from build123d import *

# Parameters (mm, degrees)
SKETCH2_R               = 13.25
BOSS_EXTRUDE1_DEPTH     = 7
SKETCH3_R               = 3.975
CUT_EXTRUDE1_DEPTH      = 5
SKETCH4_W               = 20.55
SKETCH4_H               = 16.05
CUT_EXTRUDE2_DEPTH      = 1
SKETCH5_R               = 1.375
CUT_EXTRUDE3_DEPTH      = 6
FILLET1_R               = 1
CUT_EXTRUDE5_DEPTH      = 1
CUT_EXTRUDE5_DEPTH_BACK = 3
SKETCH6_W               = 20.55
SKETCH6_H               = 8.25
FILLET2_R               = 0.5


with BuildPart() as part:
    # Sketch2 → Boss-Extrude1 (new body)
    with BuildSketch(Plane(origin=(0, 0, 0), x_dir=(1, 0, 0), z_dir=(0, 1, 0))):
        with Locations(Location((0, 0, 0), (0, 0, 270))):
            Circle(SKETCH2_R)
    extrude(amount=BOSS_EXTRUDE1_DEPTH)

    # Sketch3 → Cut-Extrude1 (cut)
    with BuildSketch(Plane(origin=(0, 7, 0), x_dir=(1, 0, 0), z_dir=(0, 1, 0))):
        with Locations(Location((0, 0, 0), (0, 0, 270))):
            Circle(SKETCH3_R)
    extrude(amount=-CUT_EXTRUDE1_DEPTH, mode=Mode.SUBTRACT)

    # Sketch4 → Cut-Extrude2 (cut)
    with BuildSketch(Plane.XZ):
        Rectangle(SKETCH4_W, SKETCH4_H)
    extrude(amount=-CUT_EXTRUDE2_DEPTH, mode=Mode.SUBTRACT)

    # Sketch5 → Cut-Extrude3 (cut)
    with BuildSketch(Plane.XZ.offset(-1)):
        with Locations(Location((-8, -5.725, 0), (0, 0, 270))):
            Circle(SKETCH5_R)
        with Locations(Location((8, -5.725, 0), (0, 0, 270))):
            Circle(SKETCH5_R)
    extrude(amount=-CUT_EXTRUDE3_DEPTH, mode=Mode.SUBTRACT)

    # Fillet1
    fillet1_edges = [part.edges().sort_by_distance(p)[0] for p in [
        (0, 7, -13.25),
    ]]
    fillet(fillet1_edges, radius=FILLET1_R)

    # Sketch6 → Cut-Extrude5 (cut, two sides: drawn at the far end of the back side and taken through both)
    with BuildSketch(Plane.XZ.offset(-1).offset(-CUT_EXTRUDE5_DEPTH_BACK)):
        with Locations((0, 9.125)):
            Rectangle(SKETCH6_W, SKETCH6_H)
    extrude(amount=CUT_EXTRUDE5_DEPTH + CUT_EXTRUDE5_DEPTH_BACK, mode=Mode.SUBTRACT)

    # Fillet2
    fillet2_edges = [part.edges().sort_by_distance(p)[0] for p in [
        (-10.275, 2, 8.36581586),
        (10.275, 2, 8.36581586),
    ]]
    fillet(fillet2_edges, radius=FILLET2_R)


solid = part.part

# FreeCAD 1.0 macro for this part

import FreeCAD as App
import Part
import Sketcher

V = App.Vector


def edges_at(feature, points):
    """Names of the edges that pass closest to the given points."""
    edges = feature.Shape.Edges
    near = lambda p: min(range(len(edges)), key=lambda i: edges[i].distToShape(Part.Vertex(*p))[0])
    return sorted({f"Edge{near(p) + 1}" for p in points})

doc = App.newDocument("Part")
body = doc.addObject("PartDesign::Body", "Body")

sketch1 = doc.addObject("Sketcher::SketchObject", "Sketch")
body.addObject(sketch1)
sketch1.AttachmentSupport = (doc.XZ_Plane, [""])
sketch1.MapMode = "FlatFace"
sketch1.addGeometry(Part.Circle(V(0, 0, 0), V(0, 0, 1), 13), False)
sketch1.addConstraint(Sketcher.Constraint("Coincident", 0, 3, -1, 1))
sketch1.addConstraint(Sketcher.Constraint("Diameter", 0, 26.5))
pad1 = doc.addObject("PartDesign::Pad", "Pad")
body.addObject(pad1)
pad1.Profile = sketch1
pad1.Length = 7
pad1.Reversed = True

sketch2 = doc.addObject("Sketcher::SketchObject", "Sketch001")
body.addObject(sketch2)
sketch2.AttachmentSupport = (doc.XZ_Plane, [""])
sketch2.MapMode = "FlatFace"
sketch2.AttachmentOffset = App.Placement(V(0, 0, -7), App.Rotation())
sketch2.addGeometry(Part.Circle(V(0, 0, 0), V(0, 0, 1), 4), False)
sketch2.addConstraint(Sketcher.Constraint("Coincident", 0, 3, -1, 1))
sketch2.addConstraint(Sketcher.Constraint("Diameter", 0, 7.95))
pocket1 = doc.addObject("PartDesign::Pocket", "Pocket")
body.addObject(pocket1)
pocket1.Profile = sketch2
pocket1.Length = 5
pocket1.Reversed = True

sketch3 = doc.addObject("Sketcher::SketchObject", "Sketch002")
body.addObject(sketch3)
sketch3.AttachmentSupport = (doc.XZ_Plane, [""])
sketch3.MapMode = "FlatFace"
sketch3.addGeometry(Part.LineSegment(V(-10, 8, 0), V(-10, -8, 0)), False)
sketch3.addGeometry(Part.LineSegment(V(-10, -8, 0), V(10, -8, 0)), False)
sketch3.addGeometry(Part.LineSegment(V(10, -8, 0), V(10, 8, 0)), False)
sketch3.addGeometry(Part.LineSegment(V(10, 8, 0), V(-10, 8, 0)), False)
sketch3.addConstraint(Sketcher.Constraint("Coincident", 0, 2, 1, 1))
sketch3.addConstraint(Sketcher.Constraint("Coincident", 1, 2, 2, 1))
sketch3.addConstraint(Sketcher.Constraint("Coincident", 2, 2, 3, 1))
sketch3.addConstraint(Sketcher.Constraint("Coincident", 3, 2, 0, 1))
sketch3.addConstraint(Sketcher.Constraint("Vertical", 0))
sketch3.addConstraint(Sketcher.Constraint("Horizontal", 1))
sketch3.addConstraint(Sketcher.Constraint("Vertical", 2))
sketch3.addConstraint(Sketcher.Constraint("Horizontal", 3))
sketch3.addConstraint(Sketcher.Constraint("Symmetric", 0, 2, 2, 2, -1, 1))
sketch3.addConstraint(Sketcher.Constraint("DistanceX", 1, 1, 1, 2, 20.55))
sketch3.addConstraint(Sketcher.Constraint("DistanceY", 0, 2, 0, 1, 16.05))
pocket2 = doc.addObject("PartDesign::Pocket", "Pocket001")
body.addObject(pocket2)
pocket2.Profile = sketch3
pocket2.Length = 1

sketch4 = doc.addObject("Sketcher::SketchObject", "Sketch003")
body.addObject(sketch4)
sketch4.AttachmentSupport = (doc.XZ_Plane, [""])
sketch4.MapMode = "FlatFace"
sketch4.AttachmentOffset = App.Placement(V(0, 0, -1), App.Rotation())
sketch4.addGeometry(Part.Circle(V(-8, -5.7, 0), V(0, 0, 1), 1.4), False)
sketch4.addGeometry(Part.Circle(V(8, -5.7, 0), V(0, 0, 1), 1.4), False)
sketch4.addConstraint(Sketcher.Constraint("Equal", 0, 1))
sketch4.addConstraint(Sketcher.Constraint("Symmetric", 0, 3, 1, 3, -2))
sketch4.addConstraint(Sketcher.Constraint("Diameter", 0, 2.75))
sketch4.addConstraint(Sketcher.Constraint("DistanceX", 0, 3, -1, 1, 8.0))
sketch4.addConstraint(Sketcher.Constraint("DistanceY", 0, 3, -1, 1, 5.725))
pocket3 = doc.addObject("PartDesign::Pocket", "Pocket002")
body.addObject(pocket3)
pocket3.Profile = sketch4
pocket3.Length = 6
doc.recompute()

fillet = doc.addObject("PartDesign::Fillet", "Fillet")
body.addObject(fillet)
fillet.Base = (pocket3, edges_at(pocket3, [(0, 7, -13.25)]))
fillet.Radius = 1

sketch5 = doc.addObject("Sketcher::SketchObject", "Sketch004")
body.addObject(sketch5)
sketch5.AttachmentSupport = (doc.XZ_Plane, [""])
sketch5.MapMode = "FlatFace"
sketch5.AttachmentOffset = App.Placement(V(0, 0, -1), App.Rotation())
sketch5.addGeometry(Part.LineSegment(V(-10, 13, 0), V(-10, 5, 0)), False)
sketch5.addGeometry(Part.LineSegment(V(-10, 5, 0), V(10, 5, 0)), False)
sketch5.addGeometry(Part.LineSegment(V(10, 5, 0), V(10, 13, 0)), False)
sketch5.addGeometry(Part.LineSegment(V(10, 13, 0), V(-10, 13, 0)), False)
sketch5.addConstraint(Sketcher.Constraint("Coincident", 0, 2, 1, 1))
sketch5.addConstraint(Sketcher.Constraint("Coincident", 1, 2, 2, 1))
sketch5.addConstraint(Sketcher.Constraint("Coincident", 2, 2, 3, 1))
sketch5.addConstraint(Sketcher.Constraint("Coincident", 3, 2, 0, 1))
sketch5.addConstraint(Sketcher.Constraint("Vertical", 0))
sketch5.addConstraint(Sketcher.Constraint("Horizontal", 1))
sketch5.addConstraint(Sketcher.Constraint("Vertical", 2))
sketch5.addConstraint(Sketcher.Constraint("Horizontal", 3))
sketch5.addConstraint(Sketcher.Constraint("DistanceY", -1, 1, 0, 2, 5.0))
sketch5.addConstraint(Sketcher.Constraint("DistanceX", 1, 1, 1, 2, 20.55))
sketch5.addConstraint(Sketcher.Constraint("DistanceY", 0, 2, 0, 1, 8.25))
sketch5.addConstraint(Sketcher.Constraint("DistanceX", 0, 2, -1, 1, 10.275))
pocket4 = doc.addObject("PartDesign::Pocket", "Pocket003")
body.addObject(pocket4)
pocket4.Profile = sketch5
pocket4.Type = "TwoLengths"
pocket4.Length = 1
pocket4.Length2 = 3
pocket4.Reversed = True
doc.recompute()

fillet2 = doc.addObject("PartDesign::Fillet", "Fillet001")
body.addObject(fillet2)
fillet2.Base = (pocket4, edges_at(pocket4, [(-10.275, 2, 8.366), (10.275, 2, 8.366)]))
fillet2.Radius = 0.5

doc.recompute()
